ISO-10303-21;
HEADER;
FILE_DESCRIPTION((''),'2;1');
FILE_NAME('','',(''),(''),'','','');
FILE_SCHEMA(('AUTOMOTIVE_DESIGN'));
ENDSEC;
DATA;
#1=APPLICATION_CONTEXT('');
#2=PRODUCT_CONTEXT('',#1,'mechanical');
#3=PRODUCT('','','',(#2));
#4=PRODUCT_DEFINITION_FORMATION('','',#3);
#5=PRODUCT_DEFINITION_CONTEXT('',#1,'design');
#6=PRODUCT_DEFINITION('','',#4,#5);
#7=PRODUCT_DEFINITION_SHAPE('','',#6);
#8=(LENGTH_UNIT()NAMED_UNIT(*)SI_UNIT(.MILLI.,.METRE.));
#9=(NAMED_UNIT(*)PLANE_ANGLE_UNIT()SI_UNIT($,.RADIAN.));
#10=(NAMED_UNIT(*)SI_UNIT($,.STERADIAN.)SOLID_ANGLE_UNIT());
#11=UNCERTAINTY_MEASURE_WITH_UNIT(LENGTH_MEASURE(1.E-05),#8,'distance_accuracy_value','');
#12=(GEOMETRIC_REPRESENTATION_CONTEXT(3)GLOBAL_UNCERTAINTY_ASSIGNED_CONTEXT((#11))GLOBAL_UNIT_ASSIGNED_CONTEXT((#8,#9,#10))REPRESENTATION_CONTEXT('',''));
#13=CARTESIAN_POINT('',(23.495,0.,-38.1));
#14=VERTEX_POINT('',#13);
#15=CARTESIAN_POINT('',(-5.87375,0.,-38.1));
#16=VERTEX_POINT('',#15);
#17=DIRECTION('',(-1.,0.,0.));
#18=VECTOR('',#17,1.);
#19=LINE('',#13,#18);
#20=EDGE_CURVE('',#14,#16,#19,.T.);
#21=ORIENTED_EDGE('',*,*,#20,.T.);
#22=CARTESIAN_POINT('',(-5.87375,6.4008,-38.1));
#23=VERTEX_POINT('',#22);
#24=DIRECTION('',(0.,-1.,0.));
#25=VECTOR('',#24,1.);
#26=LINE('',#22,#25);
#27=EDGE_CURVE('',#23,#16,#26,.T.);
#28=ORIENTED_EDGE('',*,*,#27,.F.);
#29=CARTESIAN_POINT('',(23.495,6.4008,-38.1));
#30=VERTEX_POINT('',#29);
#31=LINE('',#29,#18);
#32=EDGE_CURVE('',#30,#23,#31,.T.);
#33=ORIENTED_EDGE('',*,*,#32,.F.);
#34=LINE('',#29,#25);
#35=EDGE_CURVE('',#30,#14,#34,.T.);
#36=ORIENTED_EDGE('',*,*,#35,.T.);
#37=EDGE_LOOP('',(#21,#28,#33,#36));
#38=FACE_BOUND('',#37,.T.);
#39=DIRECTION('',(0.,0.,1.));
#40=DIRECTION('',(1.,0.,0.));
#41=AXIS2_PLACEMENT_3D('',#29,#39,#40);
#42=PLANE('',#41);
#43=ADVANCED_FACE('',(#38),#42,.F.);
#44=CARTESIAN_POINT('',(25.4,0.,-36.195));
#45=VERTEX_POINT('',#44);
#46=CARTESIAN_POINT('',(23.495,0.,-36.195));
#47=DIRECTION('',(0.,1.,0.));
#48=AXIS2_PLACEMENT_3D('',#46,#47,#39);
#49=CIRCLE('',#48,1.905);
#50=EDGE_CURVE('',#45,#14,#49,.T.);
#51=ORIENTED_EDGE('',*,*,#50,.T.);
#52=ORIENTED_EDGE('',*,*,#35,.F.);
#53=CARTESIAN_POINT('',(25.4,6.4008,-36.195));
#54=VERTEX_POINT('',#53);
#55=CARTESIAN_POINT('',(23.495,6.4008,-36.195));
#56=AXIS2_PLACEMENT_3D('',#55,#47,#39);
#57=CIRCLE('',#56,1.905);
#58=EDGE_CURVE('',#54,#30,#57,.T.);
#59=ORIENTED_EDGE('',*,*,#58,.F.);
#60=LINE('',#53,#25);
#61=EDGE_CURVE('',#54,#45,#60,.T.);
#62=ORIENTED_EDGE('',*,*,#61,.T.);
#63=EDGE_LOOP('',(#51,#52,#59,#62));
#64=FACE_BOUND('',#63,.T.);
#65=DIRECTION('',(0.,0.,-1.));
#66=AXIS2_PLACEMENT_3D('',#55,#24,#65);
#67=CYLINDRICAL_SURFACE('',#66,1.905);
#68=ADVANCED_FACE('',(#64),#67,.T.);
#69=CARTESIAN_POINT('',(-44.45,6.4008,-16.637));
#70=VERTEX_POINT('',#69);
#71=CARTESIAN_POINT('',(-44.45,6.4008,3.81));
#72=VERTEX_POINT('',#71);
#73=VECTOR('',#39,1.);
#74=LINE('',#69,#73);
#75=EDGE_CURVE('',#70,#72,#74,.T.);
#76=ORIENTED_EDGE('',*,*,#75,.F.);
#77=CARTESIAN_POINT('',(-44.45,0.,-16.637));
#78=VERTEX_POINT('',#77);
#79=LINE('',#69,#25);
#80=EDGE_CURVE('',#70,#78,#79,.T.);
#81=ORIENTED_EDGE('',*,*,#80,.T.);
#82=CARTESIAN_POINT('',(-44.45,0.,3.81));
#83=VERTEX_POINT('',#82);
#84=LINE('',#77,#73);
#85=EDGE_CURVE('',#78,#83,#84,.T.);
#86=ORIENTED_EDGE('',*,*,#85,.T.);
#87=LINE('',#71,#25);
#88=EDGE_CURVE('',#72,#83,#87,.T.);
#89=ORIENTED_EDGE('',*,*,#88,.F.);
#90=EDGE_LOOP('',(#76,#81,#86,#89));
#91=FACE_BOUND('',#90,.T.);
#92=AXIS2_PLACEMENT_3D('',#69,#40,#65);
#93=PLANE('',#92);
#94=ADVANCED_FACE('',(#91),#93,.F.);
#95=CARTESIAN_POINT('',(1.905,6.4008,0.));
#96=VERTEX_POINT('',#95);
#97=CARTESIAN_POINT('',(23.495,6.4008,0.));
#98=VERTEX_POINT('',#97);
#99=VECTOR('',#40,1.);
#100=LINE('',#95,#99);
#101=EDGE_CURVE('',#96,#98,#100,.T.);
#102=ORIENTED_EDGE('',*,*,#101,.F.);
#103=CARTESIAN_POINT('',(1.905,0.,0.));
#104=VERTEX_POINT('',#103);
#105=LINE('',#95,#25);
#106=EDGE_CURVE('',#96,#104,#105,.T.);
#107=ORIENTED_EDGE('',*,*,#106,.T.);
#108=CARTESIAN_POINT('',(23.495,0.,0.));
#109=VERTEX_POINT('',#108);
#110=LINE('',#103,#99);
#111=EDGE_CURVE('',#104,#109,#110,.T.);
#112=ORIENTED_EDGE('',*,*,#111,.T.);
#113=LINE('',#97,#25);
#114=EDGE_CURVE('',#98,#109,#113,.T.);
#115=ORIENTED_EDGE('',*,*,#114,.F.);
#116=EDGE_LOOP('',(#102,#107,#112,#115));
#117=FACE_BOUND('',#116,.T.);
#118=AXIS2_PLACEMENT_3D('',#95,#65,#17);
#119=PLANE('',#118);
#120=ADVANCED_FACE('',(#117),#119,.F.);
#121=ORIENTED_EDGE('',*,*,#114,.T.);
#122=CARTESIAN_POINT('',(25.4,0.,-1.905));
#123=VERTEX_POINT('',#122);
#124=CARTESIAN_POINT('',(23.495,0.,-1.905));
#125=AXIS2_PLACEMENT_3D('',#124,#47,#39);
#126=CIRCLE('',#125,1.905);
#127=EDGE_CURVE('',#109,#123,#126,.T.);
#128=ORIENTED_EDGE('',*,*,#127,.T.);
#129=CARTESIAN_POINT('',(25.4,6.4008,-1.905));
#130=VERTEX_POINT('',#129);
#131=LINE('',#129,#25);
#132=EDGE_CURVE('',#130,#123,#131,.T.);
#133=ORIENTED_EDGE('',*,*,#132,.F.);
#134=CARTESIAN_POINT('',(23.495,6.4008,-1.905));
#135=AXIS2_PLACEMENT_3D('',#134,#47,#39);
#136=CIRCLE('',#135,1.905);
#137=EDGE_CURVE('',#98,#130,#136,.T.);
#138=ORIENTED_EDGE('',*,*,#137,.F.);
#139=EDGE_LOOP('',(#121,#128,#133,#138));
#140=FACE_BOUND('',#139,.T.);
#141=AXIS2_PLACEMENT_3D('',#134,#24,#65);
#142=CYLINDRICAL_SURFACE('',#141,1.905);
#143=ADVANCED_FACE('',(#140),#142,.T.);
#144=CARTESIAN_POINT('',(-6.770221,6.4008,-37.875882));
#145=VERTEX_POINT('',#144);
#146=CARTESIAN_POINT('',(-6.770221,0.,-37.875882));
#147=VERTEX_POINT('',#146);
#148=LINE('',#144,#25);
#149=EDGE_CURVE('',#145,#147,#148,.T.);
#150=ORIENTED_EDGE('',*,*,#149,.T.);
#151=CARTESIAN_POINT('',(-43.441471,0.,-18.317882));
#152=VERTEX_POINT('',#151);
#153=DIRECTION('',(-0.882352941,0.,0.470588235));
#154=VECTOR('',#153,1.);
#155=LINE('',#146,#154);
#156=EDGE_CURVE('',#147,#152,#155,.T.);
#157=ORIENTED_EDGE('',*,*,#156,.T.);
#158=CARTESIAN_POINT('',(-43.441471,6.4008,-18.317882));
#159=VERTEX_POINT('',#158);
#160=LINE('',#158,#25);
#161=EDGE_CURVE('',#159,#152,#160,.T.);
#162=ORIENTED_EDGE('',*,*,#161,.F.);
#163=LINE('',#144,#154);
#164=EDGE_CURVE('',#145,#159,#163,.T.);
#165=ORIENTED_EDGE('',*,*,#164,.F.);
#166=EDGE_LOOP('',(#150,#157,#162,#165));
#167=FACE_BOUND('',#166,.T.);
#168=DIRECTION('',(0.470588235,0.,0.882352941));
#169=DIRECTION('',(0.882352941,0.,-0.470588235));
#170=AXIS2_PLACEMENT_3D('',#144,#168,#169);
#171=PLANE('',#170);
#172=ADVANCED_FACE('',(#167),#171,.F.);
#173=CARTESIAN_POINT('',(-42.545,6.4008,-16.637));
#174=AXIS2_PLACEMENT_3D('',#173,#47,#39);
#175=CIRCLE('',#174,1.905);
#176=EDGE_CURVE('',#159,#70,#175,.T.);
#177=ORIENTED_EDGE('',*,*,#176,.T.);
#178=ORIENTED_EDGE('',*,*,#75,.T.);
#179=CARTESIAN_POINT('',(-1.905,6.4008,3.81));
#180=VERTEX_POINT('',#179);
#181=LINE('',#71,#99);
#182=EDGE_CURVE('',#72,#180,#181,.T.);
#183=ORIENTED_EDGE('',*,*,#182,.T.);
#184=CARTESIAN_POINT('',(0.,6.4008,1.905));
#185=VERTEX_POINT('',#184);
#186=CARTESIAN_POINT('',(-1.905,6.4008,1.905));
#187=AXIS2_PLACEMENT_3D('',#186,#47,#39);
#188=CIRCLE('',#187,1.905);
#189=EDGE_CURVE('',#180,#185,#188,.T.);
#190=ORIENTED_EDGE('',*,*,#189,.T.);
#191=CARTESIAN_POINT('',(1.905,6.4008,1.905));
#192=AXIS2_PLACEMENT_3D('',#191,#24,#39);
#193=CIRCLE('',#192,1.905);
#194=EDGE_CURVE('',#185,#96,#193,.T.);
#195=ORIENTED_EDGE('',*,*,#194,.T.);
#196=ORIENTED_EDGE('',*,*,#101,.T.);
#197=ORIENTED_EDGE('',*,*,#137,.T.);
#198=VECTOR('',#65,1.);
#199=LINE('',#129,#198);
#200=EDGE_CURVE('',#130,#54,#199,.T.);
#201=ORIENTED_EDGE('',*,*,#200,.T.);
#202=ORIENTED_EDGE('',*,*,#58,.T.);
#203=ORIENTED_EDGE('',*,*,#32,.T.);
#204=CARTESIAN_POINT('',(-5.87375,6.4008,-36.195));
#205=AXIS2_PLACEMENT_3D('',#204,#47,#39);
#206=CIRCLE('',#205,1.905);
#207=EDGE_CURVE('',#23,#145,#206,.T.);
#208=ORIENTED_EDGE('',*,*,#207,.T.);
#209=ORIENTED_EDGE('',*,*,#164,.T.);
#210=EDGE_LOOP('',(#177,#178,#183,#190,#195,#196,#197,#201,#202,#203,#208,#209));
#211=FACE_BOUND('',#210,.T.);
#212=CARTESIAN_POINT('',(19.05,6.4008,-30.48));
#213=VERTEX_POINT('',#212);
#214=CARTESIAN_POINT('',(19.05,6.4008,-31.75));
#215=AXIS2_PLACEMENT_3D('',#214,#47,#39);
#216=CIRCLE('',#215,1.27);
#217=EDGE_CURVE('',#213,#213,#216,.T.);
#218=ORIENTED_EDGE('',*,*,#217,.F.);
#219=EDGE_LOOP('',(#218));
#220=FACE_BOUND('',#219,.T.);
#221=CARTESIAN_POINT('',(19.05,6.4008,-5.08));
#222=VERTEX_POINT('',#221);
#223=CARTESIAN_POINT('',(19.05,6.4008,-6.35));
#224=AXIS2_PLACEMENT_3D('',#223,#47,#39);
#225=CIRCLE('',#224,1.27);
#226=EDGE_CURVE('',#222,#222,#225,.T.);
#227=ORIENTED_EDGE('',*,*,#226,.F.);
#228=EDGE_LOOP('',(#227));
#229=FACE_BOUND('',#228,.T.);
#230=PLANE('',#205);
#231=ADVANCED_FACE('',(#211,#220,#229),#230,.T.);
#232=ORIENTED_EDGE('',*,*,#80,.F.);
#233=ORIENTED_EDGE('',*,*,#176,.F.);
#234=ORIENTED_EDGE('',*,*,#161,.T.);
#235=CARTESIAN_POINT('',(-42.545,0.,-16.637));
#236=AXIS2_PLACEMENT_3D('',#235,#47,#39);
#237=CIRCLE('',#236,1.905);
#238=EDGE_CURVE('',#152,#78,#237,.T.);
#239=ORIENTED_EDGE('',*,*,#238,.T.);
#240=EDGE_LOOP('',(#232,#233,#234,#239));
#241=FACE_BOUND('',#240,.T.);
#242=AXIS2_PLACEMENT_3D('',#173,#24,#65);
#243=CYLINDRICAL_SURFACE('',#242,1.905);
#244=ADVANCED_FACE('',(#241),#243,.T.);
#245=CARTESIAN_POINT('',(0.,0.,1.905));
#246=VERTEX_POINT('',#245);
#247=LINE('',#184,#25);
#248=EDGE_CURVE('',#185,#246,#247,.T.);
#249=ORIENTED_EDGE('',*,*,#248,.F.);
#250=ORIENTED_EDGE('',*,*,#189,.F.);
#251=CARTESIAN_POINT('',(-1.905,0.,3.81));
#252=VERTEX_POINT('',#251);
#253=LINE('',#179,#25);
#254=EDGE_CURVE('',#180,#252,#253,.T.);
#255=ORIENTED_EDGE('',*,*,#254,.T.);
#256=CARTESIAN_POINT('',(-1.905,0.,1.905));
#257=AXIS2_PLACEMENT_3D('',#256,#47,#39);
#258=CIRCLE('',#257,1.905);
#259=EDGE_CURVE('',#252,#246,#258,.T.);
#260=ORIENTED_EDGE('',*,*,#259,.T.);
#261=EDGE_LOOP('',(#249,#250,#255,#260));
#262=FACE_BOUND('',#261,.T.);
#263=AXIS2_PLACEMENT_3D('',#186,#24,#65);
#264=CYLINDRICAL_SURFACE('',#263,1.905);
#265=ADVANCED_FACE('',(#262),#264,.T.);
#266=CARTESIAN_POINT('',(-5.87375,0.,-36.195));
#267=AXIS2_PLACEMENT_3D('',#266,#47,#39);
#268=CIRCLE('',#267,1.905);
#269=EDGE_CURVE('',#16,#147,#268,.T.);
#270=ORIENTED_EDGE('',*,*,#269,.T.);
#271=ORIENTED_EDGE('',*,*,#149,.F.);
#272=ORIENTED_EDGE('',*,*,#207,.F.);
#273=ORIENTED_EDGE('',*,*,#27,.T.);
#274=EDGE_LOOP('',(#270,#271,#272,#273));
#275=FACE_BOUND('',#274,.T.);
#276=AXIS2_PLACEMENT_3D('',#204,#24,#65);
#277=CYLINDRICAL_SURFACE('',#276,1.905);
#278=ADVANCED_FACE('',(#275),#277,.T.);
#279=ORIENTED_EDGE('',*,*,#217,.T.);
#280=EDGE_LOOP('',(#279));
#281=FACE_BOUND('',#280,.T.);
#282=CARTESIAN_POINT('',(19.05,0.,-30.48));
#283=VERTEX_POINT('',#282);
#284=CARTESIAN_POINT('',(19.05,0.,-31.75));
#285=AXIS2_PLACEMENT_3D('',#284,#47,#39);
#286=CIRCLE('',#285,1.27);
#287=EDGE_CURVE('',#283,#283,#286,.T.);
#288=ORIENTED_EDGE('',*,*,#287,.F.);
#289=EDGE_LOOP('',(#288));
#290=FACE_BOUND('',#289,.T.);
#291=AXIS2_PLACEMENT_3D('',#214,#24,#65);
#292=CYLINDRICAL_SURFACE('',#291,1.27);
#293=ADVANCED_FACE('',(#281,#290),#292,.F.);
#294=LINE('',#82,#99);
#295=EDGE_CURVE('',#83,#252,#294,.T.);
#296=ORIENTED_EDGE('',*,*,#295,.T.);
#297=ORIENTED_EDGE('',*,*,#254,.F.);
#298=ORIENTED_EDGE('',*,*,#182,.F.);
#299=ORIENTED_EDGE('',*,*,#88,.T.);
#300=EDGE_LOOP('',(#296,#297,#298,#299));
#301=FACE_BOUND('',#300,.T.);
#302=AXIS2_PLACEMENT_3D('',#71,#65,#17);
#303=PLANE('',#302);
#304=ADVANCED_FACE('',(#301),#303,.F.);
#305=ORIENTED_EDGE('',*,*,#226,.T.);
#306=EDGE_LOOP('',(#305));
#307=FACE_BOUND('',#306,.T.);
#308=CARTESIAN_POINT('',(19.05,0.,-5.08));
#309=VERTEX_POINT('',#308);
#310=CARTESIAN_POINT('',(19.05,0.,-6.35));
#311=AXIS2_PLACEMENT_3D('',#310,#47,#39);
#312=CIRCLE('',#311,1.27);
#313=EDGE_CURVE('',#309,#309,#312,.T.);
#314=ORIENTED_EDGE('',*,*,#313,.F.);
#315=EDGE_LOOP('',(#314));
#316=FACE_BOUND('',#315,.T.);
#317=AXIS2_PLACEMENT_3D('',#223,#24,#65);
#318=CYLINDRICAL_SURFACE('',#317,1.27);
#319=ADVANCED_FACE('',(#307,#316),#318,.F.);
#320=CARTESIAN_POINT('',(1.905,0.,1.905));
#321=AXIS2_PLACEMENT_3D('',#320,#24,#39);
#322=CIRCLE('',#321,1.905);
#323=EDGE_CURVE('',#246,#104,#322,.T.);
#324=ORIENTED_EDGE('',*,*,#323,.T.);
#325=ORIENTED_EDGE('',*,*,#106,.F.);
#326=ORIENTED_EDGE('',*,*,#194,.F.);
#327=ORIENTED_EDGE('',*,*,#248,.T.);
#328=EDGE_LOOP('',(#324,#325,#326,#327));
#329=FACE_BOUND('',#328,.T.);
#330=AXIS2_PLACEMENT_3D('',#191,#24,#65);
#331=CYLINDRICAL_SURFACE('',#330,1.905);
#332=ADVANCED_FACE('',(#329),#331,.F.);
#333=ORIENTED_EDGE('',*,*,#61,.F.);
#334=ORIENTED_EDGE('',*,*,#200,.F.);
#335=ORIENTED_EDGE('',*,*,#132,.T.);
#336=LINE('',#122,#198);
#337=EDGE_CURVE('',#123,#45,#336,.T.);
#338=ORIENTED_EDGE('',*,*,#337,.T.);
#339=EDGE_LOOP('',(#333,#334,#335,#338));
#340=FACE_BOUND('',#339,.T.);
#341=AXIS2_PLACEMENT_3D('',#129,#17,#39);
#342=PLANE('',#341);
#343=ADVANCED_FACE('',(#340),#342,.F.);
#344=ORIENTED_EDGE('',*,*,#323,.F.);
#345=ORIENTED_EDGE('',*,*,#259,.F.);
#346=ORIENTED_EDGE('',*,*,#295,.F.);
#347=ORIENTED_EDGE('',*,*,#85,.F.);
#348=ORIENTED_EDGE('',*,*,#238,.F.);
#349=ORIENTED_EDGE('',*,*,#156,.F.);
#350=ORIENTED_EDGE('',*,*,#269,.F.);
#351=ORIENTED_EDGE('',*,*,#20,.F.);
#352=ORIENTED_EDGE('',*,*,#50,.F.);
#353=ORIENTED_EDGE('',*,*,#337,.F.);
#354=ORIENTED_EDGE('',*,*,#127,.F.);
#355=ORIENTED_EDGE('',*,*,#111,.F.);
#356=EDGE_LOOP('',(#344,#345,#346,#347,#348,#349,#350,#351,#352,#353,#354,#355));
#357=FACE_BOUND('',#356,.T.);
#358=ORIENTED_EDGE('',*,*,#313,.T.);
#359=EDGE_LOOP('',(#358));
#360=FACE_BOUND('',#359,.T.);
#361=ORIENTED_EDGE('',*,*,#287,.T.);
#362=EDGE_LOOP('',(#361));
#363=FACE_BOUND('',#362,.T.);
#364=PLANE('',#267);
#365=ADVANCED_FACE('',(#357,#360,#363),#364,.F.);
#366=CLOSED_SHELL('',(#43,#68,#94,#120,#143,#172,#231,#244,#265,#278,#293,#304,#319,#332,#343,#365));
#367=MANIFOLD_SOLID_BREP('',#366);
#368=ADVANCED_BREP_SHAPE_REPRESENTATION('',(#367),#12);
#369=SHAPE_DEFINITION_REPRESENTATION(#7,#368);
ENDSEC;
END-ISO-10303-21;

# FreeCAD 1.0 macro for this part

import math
import FreeCAD as App
import Part
import Sketcher
Q = App.Units.Quantity

doc = App.newDocument("Part")
body = doc.addObject("PartDesign::Body", "Body")

sketch1 = doc.addObject("Sketcher::SketchObject", "Sketch")
body.addObject(sketch1)
sketch1.AttachmentSupport = (doc.XZ_Plane, [""])
sketch1.MapMode = "FlatFace"
sketch1.addGeometry([
    Part.LineSegment(App.Vector(1.9, 0, 0), App.Vector(23.5, 0, 0)),
    Part.ArcOfCircle(Part.Circle(App.Vector(23.5, -1.9, 0), App.Vector(0, 0, 1), 1.9), math.radians(0), math.radians(90)),
    Part.LineSegment(App.Vector(25.4, -1.9, 0), App.Vector(25.4, -36.2, 0)),
    Part.ArcOfCircle(Part.Circle(App.Vector(23.5, -36.2, 0), App.Vector(0, 0, 1), 1.9), math.radians(-90), math.radians(0)),
    Part.LineSegment(App.Vector(23.5, -38.1, 0), App.Vector(-5.9, -38.1, 0)),
    Part.ArcOfCircle(Part.Circle(App.Vector(-5.9, -36.2, 0), App.Vector(0, 0, 1), 1.9), math.radians(-118), math.radians(-90)),
    Part.LineSegment(App.Vector(-6.8, -37.9, 0), App.Vector(-43.4, -18.3, 0)),
    Part.ArcOfCircle(Part.Circle(App.Vector(-42.5, -16.6, 0), App.Vector(0, 0, 1), 1.9), math.radians(-180), math.radians(-118)),
    Part.LineSegment(App.Vector(-44.5, -16.6, 0), App.Vector(-44.5, 3.8, 0)),
    Part.LineSegment(App.Vector(-44.5, 3.8, 0), App.Vector(-1.9, 3.8, 0)),
    Part.ArcOfCircle(Part.Circle(App.Vector(-1.9, 1.9, 0), App.Vector(0, 0, 1), 1.9), math.radians(0), math.radians(90)),
    Part.ArcOfCircle(Part.Circle(App.Vector(1.9, 1.9, 0), App.Vector(0, 0, 1), 1.9), math.radians(-180), math.radians(-90)),
    Part.Circle(App.Vector(19.1, -6.3, 0), App.Vector(0, 0, 1), 1.3),
    Part.Circle(App.Vector(19.1, -31.8, 0), App.Vector(0, 0, 1), 1.3),
], False)
sketch1.addConstraint([
    Sketcher.Constraint("Tangent", 0, 2, 1, 2),
    Sketcher.Constraint("Tangent", 1, 1, 2, 1),
    Sketcher.Constraint("Tangent", 2, 2, 3, 2),
    Sketcher.Constraint("Tangent", 3, 1, 4, 1),
    Sketcher.Constraint("Tangent", 4, 2, 5, 2),
    Sketcher.Constraint("Tangent", 5, 1, 6, 1),
    Sketcher.Constraint("Tangent", 6, 2, 7, 2),
    Sketcher.Constraint("Tangent", 7, 1, 8, 1),
    Sketcher.Constraint("Coincident", 8, 2, 9, 1),
    Sketcher.Constraint("Tangent", 9, 2, 10, 2),
    Sketcher.Constraint("Tangent", 10, 1, 11, 1),
    Sketcher.Constraint("Tangent", 11, 2, 0, 1),
    Sketcher.Constraint("Horizontal", 0),
    Sketcher.Constraint("Vertical", 2),
    Sketcher.Constraint("Horizontal", 4),
    Sketcher.Constraint("Vertical", 8),
    Sketcher.Constraint("Horizontal", 9),
    Sketcher.Constraint("Equal", 1, 3),
    Sketcher.Constraint("Equal", 3, 5),
    Sketcher.Constraint("Equal", 5, 7),
    Sketcher.Constraint("Equal", 7, 10),
    Sketcher.Constraint("Equal", 10, 11),
    Sketcher.Constraint("Equal", 12, 13),
    Sketcher.Constraint("Symmetric", 10, 3, 11, 3, -2),
    Sketcher.Constraint("PointOnObject", 0, 2, -1),
    Sketcher.Constraint("Vertical", 12, 3, 13, 3),
    Sketcher.Constraint("Diameter", 12, Q("0.1 in")),
    Sketcher.Constraint("DistanceX", -1, 1, 1, 1, Q("1 in")),
    Sketcher.Constraint("Radius", 1, Q("0.075 in")),
    Sketcher.Constraint("DistanceY", 13, 3, 12, 3, Q("1 in")),
    Sketcher.Constraint("DistanceY", 2, 2, 2, 1, Q("1.35 in")),
    Sketcher.Constraint("DistanceX", 7, 3, 1, 3, Q("2.6 in")),
    Sketcher.Constraint("DistanceY", 12, 3, 9, 2, Q("0.4 in")),
    Sketcher.Constraint("DistanceX", 4, 2, 4, 1, Q("1.15625 in")),
    Sketcher.Constraint("DistanceY", 8, 1, 8, 2, Q("0.805 in")),
    Sketcher.Constraint("DistanceX", -1, 1, 12, 3, Q("0.75 in")),
])
pad1 = doc.addObject("PartDesign::Pad", "Pad")
body.addObject(pad1)
pad1.Profile = sketch1
pad1.Length = Q("0.252 in")
pad1.Reversed = True

doc.recompute()
